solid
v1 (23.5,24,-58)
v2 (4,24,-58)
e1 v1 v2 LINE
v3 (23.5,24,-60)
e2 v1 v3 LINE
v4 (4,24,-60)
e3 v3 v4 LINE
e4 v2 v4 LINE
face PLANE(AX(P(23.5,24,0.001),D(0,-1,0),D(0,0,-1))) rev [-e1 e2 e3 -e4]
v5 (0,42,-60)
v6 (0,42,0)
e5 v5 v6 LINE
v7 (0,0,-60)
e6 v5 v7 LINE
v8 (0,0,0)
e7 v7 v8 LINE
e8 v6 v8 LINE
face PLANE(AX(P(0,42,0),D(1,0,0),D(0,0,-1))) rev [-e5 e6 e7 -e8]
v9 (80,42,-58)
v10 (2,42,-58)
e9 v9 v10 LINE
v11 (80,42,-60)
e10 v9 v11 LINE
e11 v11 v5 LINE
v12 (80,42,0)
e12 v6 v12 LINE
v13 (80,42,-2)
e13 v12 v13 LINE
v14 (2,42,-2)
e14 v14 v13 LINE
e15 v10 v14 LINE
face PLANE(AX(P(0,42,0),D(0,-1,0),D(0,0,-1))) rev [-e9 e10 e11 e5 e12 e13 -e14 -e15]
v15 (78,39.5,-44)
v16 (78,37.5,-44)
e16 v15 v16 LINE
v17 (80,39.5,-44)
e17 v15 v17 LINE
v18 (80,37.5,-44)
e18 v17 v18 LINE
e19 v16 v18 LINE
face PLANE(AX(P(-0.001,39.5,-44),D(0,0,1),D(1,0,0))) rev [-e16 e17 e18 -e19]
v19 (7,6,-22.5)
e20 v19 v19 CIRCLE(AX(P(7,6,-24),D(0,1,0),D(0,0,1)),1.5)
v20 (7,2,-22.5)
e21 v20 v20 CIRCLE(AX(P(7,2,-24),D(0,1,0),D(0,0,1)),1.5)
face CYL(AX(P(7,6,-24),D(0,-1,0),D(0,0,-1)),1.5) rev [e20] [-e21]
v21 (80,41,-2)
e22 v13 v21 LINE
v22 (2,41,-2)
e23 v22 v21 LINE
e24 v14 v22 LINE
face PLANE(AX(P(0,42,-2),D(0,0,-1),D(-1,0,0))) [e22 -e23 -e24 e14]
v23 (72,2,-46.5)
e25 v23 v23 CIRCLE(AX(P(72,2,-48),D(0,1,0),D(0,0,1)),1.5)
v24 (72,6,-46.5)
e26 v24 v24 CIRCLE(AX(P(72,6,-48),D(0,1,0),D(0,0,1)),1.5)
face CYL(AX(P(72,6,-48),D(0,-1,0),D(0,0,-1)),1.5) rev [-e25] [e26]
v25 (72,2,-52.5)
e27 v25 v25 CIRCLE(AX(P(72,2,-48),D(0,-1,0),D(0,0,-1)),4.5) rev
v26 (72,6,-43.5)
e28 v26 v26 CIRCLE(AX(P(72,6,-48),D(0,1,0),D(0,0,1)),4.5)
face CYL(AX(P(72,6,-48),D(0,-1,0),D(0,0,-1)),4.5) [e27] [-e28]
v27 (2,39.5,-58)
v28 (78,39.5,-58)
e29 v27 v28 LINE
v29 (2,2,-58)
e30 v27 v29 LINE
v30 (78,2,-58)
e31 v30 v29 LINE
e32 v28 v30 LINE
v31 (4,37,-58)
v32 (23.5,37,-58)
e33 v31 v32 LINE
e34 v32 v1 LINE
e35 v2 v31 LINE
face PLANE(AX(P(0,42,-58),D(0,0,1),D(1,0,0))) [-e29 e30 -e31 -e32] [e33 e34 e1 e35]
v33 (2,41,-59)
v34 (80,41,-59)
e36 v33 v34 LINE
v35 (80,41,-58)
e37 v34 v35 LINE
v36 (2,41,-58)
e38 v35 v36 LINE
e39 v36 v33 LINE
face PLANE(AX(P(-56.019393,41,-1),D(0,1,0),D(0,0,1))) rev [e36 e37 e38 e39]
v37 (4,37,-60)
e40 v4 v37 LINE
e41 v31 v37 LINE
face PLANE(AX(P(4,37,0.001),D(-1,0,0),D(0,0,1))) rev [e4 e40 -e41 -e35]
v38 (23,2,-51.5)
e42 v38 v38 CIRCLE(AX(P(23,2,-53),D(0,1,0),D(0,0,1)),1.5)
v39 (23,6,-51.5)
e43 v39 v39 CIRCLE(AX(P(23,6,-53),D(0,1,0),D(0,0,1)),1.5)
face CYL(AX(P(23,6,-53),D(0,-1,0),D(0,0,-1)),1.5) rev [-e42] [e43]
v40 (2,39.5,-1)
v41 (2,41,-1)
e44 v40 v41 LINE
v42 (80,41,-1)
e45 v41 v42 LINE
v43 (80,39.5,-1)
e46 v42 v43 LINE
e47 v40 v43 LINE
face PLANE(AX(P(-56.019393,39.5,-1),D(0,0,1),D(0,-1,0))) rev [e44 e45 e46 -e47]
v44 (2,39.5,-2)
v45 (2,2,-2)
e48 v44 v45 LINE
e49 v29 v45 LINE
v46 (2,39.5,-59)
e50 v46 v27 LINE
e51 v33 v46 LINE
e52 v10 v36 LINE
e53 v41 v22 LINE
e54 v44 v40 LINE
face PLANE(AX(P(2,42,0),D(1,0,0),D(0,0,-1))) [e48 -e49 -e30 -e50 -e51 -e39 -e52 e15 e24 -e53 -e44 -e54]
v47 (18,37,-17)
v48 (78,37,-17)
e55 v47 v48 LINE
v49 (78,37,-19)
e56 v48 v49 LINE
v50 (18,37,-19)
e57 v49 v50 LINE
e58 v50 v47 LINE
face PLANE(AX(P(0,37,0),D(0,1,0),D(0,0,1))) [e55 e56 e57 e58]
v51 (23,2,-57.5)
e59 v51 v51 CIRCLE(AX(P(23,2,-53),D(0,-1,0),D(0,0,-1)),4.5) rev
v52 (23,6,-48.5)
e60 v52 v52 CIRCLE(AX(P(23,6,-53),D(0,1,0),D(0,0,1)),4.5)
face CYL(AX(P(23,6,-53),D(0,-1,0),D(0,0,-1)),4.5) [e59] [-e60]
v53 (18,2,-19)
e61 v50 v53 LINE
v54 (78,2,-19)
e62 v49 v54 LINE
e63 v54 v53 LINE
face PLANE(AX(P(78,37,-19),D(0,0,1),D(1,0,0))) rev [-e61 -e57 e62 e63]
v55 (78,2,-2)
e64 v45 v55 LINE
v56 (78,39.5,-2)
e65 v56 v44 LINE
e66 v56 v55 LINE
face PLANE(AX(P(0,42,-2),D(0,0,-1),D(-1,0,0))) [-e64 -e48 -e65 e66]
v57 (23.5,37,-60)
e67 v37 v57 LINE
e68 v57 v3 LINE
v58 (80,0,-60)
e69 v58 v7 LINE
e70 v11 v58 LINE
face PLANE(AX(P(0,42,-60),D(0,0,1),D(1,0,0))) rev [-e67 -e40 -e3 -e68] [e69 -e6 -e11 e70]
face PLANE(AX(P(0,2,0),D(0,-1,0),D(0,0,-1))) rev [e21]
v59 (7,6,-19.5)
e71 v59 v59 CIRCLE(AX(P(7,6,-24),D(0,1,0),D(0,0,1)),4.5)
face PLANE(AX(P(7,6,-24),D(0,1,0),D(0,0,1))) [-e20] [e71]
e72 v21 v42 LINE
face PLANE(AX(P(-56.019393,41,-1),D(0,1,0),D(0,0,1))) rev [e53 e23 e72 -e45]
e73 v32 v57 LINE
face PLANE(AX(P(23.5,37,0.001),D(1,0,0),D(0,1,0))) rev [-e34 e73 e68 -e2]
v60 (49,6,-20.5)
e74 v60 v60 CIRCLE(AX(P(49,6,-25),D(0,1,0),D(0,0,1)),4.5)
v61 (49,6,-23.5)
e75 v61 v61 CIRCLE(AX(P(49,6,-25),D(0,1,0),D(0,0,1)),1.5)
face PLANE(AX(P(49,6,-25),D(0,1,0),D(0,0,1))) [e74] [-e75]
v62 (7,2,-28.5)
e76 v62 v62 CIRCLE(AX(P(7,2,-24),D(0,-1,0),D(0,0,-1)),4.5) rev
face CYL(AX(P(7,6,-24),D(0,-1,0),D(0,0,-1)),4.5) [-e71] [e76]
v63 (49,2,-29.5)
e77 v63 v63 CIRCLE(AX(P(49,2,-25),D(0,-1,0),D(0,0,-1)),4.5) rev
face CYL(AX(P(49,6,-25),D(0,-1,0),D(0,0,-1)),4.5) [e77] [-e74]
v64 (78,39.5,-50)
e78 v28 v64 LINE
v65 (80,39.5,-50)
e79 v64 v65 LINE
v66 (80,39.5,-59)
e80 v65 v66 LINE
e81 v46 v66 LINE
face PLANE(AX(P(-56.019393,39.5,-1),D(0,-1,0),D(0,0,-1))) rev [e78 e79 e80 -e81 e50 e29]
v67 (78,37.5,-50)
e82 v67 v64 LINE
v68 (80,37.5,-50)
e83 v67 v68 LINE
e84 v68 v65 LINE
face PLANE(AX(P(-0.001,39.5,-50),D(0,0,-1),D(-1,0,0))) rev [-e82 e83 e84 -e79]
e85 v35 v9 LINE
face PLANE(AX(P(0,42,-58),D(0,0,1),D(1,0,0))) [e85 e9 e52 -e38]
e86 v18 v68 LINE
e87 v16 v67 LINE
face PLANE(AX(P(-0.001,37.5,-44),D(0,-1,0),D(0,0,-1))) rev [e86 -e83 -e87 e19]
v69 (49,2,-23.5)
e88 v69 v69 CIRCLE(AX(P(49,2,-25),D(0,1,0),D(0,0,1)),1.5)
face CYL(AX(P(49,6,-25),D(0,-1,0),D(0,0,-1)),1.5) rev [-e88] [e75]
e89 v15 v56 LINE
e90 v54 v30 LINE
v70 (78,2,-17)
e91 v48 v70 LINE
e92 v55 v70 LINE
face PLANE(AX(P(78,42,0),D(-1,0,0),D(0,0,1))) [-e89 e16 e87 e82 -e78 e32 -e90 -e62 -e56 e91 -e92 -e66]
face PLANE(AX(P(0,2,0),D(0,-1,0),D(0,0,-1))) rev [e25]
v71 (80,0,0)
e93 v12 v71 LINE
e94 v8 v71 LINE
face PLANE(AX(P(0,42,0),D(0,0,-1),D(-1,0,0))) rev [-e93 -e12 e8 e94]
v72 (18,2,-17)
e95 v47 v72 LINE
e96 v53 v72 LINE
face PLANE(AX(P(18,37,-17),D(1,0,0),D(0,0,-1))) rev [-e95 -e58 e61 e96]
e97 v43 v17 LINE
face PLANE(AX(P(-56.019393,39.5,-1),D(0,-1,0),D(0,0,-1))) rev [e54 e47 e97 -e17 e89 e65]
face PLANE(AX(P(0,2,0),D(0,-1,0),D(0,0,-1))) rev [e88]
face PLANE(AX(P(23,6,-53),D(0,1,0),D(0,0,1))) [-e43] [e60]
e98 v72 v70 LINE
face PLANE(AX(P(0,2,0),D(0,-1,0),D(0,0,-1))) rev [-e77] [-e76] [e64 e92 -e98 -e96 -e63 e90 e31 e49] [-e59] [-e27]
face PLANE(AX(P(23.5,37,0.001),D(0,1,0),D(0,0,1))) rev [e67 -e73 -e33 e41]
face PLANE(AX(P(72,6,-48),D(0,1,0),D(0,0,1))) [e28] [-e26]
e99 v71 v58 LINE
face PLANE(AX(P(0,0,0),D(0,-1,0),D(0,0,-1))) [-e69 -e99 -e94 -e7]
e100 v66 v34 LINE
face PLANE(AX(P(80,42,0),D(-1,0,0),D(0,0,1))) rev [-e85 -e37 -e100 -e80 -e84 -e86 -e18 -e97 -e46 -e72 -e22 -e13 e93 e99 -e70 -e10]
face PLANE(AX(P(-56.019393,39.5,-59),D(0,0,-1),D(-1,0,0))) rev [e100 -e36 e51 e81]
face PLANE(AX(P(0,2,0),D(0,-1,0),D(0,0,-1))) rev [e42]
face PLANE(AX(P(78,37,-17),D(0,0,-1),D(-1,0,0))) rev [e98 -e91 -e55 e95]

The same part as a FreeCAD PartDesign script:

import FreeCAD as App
import Part
import Sketcher


def faces_at(feature, points):
    """Names of the faces that lie closest to the given points."""
    faces = feature.Shape.Faces
    near = lambda p: min(range(len(faces)), key=lambda i: faces[i].distToShape(Part.Vertex(*p))[0])
    return sorted({f"Face{near(p) + 1}" for p in points})


def add_polygon(sketch, points):
    """Adds a closed chain of lines whose ends are joined by coincident constraints."""
    first, n = sketch.GeometryCount, len(points)
    for a, b in zip(points, points[1:] + points[:1]):
        sketch.addGeometry(Part.LineSegment(App.Vector(*a, 0), App.Vector(*b, 0)), False)
    for i in range(n):
        sketch.addConstraint(Sketcher.Constraint("Coincident", first + i, 2, first + (i + 1) % n, 1))

doc = App.newDocument("Part")
body = doc.addObject("PartDesign::Body", "Body")

# Sketch on XZ plane
sketch1 = doc.addObject("Sketcher::SketchObject", "Sketch")
body.addObject(sketch1)
sketch1.AttachmentSupport = (doc.XZ_Plane, [""])
sketch1.MapMode = "FlatFace"
add_polygon(sketch1, [(0, -60), (0, 0), (80, 0), (80, -60)])  # lines 0-3
sketch1.addConstraint([
    Sketcher.Constraint("Vertical", 0),
    Sketcher.Constraint("Horizontal", 1),
    Sketcher.Constraint("Vertical", 2),
    Sketcher.Constraint("Horizontal", 3),
    Sketcher.Constraint("Coincident", 0, 2, -1, 1),
    Sketcher.Constraint("DistanceX", 1, 1, 1, 2, 80.0),
    Sketcher.Constraint("DistanceY", 0, 1, 0, 2, 60.0),
])
pad1 = doc.addObject("PartDesign::Pad", "Pad")
body.addObject(pad1)
pad1.Profile = sketch1
pad1.Length = 42
pad1.Reversed = True
doc.recompute()

thickness = doc.addObject("PartDesign::Thickness", "Thickness")
body.addObject(thickness)
thickness.Base = (pad1, faces_at(pad1, [(40, 42, -30)]))
thickness.Value = 2
thickness.Reversed = True
thickness.Join = "Intersection"

# Sketch on XZ plane
sketch2 = doc.addObject("Sketcher::SketchObject", "Sketch001")
body.addObject(sketch2)
sketch2.AttachmentSupport = (doc.XZ_Plane, [""])
sketch2.MapMode = "FlatFace"
sketch2.AttachmentOffset = App.Placement(App.Vector(0, 0, -2), App.Rotation())
add_polygon(sketch2, [(18, -19), (18, -17), (78, -17), (78, -19)])  # lines 0-3
sketch2.addConstraint([
    Sketcher.Constraint("Vertical", 0),
    Sketcher.Constraint("Horizontal", 1),
    Sketcher.Constraint("Vertical", 2),
    Sketcher.Constraint("Horizontal", 3),
    Sketcher.Constraint("DistanceX", 1, 1, 1, 2, 60.0),
    Sketcher.Constraint("DistanceY", 0, 1, 0, 2, 2.0),
    Sketcher.Constraint("DistanceX", -1, 1, 0, 2, 18.0),
    Sketcher.Constraint("DistanceY", 0, 2, -1, 1, 17.0),
])
pad2 = doc.addObject("PartDesign::Pad", "Pad001")
body.addObject(pad2)
pad2.Profile = sketch2
pad2.Length = 35
pad2.Reversed = True

# Sketch on XZ plane
sketch3 = doc.addObject("Sketcher::SketchObject", "Sketch002")
body.addObject(sketch3)
sketch3.AttachmentSupport = (doc.XZ_Plane, [""])
sketch3.MapMode = "FlatFace"
sketch3.AttachmentOffset = App.Placement(App.Vector(0, 0, -2), App.Rotation())
sketch3.addGeometry([
    Part.Circle(App.Vector(7, -24, 0), App.Vector(0, 0, 1), 4.5),
    Part.Circle(App.Vector(7, -24, 0), App.Vector(0, 0, 1), 1.5),
    Part.Circle(App.Vector(23, -53, 0), App.Vector(0, 0, 1), 4.5),
    Part.Circle(App.Vector(23, -53, 0), App.Vector(0, 0, 1), 1.5),
], False)
sketch3.addConstraint([
    Sketcher.Constraint("Coincident", 1, 3, 0, 3),
    Sketcher.Constraint("Coincident", 3, 3, 2, 3),
    Sketcher.Constraint("Equal", 0, 2),
    Sketcher.Constraint("Equal", 1, 3),
    Sketcher.Constraint("Diameter", 0, 9.0),
    Sketcher.Constraint("Diameter", 1, 3.0),
    Sketcher.Constraint("DistanceX", -1, 1, 0, 3, 7.0),
    Sketcher.Constraint("DistanceY", 0, 3, -1, 1, 24.0),
    Sketcher.Constraint("DistanceX", -1, 1, 2, 3, 23.0),
    Sketcher.Constraint("DistanceY", 2, 3, -1, 1, 53.0),
])
pad3 = doc.addObject("PartDesign::Pad", "Pad002")
body.addObject(pad3)
pad3.Profile = sketch3
pad3.Length = 4
pad3.Reversed = True

# Sketch on XZ plane
sketch4 = doc.addObject("Sketcher::SketchObject", "Sketch003")
body.addObject(sketch4)
sketch4.AttachmentSupport = (doc.XZ_Plane, [""])
sketch4.MapMode = "FlatFace"
sketch4.AttachmentOffset = App.Placement(App.Vector(0, 0, -2), App.Rotation())
sketch4.addGeometry([
    Part.Circle(App.Vector(49, -25, 0), App.Vector(0, 0, 1), 4.5),
    Part.Circle(App.Vector(49, -25, 0), App.Vector(0, 0, 1), 1.5),
    Part.Circle(App.Vector(72, -48, 0), App.Vector(0, 0, 1), 4.5),
    Part.Circle(App.Vector(72, -48, 0), App.Vector(0, 0, 1), 1.5),
], False)
sketch4.addConstraint([
    Sketcher.Constraint("Coincident", 1, 3, 0, 3),
    Sketcher.Constraint("Coincident", 3, 3, 2, 3),
    Sketcher.Constraint("Equal", 0, 2),
    Sketcher.Constraint("Equal", 1, 3),
    Sketcher.Constraint("Diameter", 0, 9.0),
    Sketcher.Constraint("Diameter", 1, 3.0),
    Sketcher.Constraint("DistanceX", -1, 1, 0, 3, 49.0),
    Sketcher.Constraint("DistanceY", 0, 3, -1, 1, 25.0),
    Sketcher.Constraint("DistanceX", -1, 1, 2, 3, 72.0),
    Sketcher.Constraint("DistanceY", 2, 3, -1, 1, 48.0),
])
pad4 = doc.addObject("PartDesign::Pad", "Pad003")
body.addObject(pad4)
pad4.Profile = sketch4
pad4.Length = 4
pad4.Reversed = True

# Sketch on YZ plane
sketch5 = doc.addObject("Sketcher::SketchObject", "Sketch004")
body.addObject(sketch5)
sketch5.AttachmentSupport = (doc.YZ_Plane, [""])
sketch5.MapMode = "FlatFace"
sketch5.AttachmentOffset = App.Placement(App.Vector(0, 0, 80), App.Rotation())
add_polygon(sketch5, [(42, -2), (40, -2), (40, -58), (42, -58)])  # lines 0-3
sketch5.addConstraint([
    Sketcher.Constraint("Horizontal", 0),
    Sketcher.Constraint("Vertical", 1),
    Sketcher.Constraint("Horizontal", 2),
    Sketcher.Constraint("Vertical", 3),
    Sketcher.Constraint("DistanceX", 0, 2, 0, 1, 2.0),
    Sketcher.Constraint("DistanceY", 1, 2, 1, 1, 56.0),
    Sketcher.Constraint("DistanceX", -1, 1, 0, 2, 40.0),
    Sketcher.Constraint("DistanceY", 0, 2, -1, 1, 2.0),
])
pocket1 = doc.addObject("PartDesign::Pocket", "Pocket")
body.addObject(pocket1)
pocket1.Profile = sketch5
pocket1.Type = "UpToFirst"

# Sketch on YZ plane
sketch6 = doc.addObject("Sketcher::SketchObject", "Sketch005")
body.addObject(sketch6)
sketch6.AttachmentSupport = (doc.YZ_Plane, [""])
sketch6.MapMode = "FlatFace"
sketch6.AttachmentOffset = App.Placement(App.Vector(0, 0, 80), App.Rotation())
add_polygon(sketch6, [(41, -1), (39.5, -1), (39.5, -59), (41, -59)])  # lines 0-3
sketch6.addConstraint([
    Sketcher.Constraint("Horizontal", 0),
    Sketcher.Constraint("Vertical", 1),
    Sketcher.Constraint("Horizontal", 2),
    Sketcher.Constraint("Vertical", 3),
    Sketcher.Constraint("DistanceY", 1, 2, 1, 1, 58.0),
    Sketcher.Constraint("DistanceX", 0, 2, 0, 1, 1.5),
    Sketcher.Constraint("DistanceY", 0, 2, -1, 1, 1.0),
    Sketcher.Constraint("DistanceX", -1, 1, 2, 2, 41.0),
])
pocket2 = doc.addObject("PartDesign::Pocket", "Pocket001")
body.addObject(pocket2)
pocket2.Profile = sketch6
pocket2.Length = 78

# Sketch on YZ plane
sketch7 = doc.addObject("Sketcher::SketchObject", "Sketch006")
body.addObject(sketch7)
sketch7.AttachmentSupport = (doc.YZ_Plane, [""])
sketch7.MapMode = "FlatFace"
sketch7.AttachmentOffset = App.Placement(App.Vector(0, 0, 80), App.Rotation())
add_polygon(sketch7, [(39.5, -44), (37.5, -44), (37.5, -50), (39.5, -50)])  # lines 0-3
sketch7.addConstraint([
    Sketcher.Constraint("Horizontal", 0),
    Sketcher.Constraint("Vertical", 1),
    Sketcher.Constraint("Horizontal", 2),
    Sketcher.Constraint("Vertical", 3),
    Sketcher.Constraint("DistanceX", 0, 2, 0, 1, 2.0),
    Sketcher.Constraint("DistanceY", 1, 2, 1, 1, 6.0),
    Sketcher.Constraint("DistanceY", 0, 2, -1, 1, 44.0),
    Sketcher.Constraint("DistanceX", -1, 1, 0, 2, 37.5),
])
pocket3 = doc.addObject("PartDesign::Pocket", "Pocket002")
body.addObject(pocket3)
pocket3.Profile = sketch7
pocket3.Type = "UpToFirst"

# Sketch on XY plane
sketch8 = doc.addObject("Sketcher::SketchObject", "Sketch007")
body.addObject(sketch8)
sketch8.AttachmentSupport = (doc.XY_Plane, [""])
sketch8.MapMode = "FlatFace"
sketch8.AttachmentOffset = App.Placement(App.Vector(0, 0, -60), App.Rotation())
add_polygon(sketch8, [(24, 37), (24, 24), (4, 24), (4, 37)])  # lines 0-3
sketch8.addConstraint([
    Sketcher.Constraint("Vertical", 0),
    Sketcher.Constraint("Horizontal", 1),
    Sketcher.Constraint("Vertical", 2),
    Sketcher.Constraint("Horizontal", 3),
    Sketcher.Constraint("DistanceY", 0, 2, 0, 1, 13.0),
    Sketcher.Constraint("DistanceX", 1, 2, 1, 1, 19.5),
    Sketcher.Constraint("DistanceY", -1, 1, 0, 2, 24.0),
    Sketcher.Constraint("DistanceX", -1, 1, 1, 2, 4.0),
])
pocket4 = doc.addObject("PartDesign::Pocket", "Pocket003")
body.addObject(pocket4)
pocket4.Profile = sketch8
pocket4.Type = "UpToFirst"
pocket4.Reversed = True

doc.recompute()
